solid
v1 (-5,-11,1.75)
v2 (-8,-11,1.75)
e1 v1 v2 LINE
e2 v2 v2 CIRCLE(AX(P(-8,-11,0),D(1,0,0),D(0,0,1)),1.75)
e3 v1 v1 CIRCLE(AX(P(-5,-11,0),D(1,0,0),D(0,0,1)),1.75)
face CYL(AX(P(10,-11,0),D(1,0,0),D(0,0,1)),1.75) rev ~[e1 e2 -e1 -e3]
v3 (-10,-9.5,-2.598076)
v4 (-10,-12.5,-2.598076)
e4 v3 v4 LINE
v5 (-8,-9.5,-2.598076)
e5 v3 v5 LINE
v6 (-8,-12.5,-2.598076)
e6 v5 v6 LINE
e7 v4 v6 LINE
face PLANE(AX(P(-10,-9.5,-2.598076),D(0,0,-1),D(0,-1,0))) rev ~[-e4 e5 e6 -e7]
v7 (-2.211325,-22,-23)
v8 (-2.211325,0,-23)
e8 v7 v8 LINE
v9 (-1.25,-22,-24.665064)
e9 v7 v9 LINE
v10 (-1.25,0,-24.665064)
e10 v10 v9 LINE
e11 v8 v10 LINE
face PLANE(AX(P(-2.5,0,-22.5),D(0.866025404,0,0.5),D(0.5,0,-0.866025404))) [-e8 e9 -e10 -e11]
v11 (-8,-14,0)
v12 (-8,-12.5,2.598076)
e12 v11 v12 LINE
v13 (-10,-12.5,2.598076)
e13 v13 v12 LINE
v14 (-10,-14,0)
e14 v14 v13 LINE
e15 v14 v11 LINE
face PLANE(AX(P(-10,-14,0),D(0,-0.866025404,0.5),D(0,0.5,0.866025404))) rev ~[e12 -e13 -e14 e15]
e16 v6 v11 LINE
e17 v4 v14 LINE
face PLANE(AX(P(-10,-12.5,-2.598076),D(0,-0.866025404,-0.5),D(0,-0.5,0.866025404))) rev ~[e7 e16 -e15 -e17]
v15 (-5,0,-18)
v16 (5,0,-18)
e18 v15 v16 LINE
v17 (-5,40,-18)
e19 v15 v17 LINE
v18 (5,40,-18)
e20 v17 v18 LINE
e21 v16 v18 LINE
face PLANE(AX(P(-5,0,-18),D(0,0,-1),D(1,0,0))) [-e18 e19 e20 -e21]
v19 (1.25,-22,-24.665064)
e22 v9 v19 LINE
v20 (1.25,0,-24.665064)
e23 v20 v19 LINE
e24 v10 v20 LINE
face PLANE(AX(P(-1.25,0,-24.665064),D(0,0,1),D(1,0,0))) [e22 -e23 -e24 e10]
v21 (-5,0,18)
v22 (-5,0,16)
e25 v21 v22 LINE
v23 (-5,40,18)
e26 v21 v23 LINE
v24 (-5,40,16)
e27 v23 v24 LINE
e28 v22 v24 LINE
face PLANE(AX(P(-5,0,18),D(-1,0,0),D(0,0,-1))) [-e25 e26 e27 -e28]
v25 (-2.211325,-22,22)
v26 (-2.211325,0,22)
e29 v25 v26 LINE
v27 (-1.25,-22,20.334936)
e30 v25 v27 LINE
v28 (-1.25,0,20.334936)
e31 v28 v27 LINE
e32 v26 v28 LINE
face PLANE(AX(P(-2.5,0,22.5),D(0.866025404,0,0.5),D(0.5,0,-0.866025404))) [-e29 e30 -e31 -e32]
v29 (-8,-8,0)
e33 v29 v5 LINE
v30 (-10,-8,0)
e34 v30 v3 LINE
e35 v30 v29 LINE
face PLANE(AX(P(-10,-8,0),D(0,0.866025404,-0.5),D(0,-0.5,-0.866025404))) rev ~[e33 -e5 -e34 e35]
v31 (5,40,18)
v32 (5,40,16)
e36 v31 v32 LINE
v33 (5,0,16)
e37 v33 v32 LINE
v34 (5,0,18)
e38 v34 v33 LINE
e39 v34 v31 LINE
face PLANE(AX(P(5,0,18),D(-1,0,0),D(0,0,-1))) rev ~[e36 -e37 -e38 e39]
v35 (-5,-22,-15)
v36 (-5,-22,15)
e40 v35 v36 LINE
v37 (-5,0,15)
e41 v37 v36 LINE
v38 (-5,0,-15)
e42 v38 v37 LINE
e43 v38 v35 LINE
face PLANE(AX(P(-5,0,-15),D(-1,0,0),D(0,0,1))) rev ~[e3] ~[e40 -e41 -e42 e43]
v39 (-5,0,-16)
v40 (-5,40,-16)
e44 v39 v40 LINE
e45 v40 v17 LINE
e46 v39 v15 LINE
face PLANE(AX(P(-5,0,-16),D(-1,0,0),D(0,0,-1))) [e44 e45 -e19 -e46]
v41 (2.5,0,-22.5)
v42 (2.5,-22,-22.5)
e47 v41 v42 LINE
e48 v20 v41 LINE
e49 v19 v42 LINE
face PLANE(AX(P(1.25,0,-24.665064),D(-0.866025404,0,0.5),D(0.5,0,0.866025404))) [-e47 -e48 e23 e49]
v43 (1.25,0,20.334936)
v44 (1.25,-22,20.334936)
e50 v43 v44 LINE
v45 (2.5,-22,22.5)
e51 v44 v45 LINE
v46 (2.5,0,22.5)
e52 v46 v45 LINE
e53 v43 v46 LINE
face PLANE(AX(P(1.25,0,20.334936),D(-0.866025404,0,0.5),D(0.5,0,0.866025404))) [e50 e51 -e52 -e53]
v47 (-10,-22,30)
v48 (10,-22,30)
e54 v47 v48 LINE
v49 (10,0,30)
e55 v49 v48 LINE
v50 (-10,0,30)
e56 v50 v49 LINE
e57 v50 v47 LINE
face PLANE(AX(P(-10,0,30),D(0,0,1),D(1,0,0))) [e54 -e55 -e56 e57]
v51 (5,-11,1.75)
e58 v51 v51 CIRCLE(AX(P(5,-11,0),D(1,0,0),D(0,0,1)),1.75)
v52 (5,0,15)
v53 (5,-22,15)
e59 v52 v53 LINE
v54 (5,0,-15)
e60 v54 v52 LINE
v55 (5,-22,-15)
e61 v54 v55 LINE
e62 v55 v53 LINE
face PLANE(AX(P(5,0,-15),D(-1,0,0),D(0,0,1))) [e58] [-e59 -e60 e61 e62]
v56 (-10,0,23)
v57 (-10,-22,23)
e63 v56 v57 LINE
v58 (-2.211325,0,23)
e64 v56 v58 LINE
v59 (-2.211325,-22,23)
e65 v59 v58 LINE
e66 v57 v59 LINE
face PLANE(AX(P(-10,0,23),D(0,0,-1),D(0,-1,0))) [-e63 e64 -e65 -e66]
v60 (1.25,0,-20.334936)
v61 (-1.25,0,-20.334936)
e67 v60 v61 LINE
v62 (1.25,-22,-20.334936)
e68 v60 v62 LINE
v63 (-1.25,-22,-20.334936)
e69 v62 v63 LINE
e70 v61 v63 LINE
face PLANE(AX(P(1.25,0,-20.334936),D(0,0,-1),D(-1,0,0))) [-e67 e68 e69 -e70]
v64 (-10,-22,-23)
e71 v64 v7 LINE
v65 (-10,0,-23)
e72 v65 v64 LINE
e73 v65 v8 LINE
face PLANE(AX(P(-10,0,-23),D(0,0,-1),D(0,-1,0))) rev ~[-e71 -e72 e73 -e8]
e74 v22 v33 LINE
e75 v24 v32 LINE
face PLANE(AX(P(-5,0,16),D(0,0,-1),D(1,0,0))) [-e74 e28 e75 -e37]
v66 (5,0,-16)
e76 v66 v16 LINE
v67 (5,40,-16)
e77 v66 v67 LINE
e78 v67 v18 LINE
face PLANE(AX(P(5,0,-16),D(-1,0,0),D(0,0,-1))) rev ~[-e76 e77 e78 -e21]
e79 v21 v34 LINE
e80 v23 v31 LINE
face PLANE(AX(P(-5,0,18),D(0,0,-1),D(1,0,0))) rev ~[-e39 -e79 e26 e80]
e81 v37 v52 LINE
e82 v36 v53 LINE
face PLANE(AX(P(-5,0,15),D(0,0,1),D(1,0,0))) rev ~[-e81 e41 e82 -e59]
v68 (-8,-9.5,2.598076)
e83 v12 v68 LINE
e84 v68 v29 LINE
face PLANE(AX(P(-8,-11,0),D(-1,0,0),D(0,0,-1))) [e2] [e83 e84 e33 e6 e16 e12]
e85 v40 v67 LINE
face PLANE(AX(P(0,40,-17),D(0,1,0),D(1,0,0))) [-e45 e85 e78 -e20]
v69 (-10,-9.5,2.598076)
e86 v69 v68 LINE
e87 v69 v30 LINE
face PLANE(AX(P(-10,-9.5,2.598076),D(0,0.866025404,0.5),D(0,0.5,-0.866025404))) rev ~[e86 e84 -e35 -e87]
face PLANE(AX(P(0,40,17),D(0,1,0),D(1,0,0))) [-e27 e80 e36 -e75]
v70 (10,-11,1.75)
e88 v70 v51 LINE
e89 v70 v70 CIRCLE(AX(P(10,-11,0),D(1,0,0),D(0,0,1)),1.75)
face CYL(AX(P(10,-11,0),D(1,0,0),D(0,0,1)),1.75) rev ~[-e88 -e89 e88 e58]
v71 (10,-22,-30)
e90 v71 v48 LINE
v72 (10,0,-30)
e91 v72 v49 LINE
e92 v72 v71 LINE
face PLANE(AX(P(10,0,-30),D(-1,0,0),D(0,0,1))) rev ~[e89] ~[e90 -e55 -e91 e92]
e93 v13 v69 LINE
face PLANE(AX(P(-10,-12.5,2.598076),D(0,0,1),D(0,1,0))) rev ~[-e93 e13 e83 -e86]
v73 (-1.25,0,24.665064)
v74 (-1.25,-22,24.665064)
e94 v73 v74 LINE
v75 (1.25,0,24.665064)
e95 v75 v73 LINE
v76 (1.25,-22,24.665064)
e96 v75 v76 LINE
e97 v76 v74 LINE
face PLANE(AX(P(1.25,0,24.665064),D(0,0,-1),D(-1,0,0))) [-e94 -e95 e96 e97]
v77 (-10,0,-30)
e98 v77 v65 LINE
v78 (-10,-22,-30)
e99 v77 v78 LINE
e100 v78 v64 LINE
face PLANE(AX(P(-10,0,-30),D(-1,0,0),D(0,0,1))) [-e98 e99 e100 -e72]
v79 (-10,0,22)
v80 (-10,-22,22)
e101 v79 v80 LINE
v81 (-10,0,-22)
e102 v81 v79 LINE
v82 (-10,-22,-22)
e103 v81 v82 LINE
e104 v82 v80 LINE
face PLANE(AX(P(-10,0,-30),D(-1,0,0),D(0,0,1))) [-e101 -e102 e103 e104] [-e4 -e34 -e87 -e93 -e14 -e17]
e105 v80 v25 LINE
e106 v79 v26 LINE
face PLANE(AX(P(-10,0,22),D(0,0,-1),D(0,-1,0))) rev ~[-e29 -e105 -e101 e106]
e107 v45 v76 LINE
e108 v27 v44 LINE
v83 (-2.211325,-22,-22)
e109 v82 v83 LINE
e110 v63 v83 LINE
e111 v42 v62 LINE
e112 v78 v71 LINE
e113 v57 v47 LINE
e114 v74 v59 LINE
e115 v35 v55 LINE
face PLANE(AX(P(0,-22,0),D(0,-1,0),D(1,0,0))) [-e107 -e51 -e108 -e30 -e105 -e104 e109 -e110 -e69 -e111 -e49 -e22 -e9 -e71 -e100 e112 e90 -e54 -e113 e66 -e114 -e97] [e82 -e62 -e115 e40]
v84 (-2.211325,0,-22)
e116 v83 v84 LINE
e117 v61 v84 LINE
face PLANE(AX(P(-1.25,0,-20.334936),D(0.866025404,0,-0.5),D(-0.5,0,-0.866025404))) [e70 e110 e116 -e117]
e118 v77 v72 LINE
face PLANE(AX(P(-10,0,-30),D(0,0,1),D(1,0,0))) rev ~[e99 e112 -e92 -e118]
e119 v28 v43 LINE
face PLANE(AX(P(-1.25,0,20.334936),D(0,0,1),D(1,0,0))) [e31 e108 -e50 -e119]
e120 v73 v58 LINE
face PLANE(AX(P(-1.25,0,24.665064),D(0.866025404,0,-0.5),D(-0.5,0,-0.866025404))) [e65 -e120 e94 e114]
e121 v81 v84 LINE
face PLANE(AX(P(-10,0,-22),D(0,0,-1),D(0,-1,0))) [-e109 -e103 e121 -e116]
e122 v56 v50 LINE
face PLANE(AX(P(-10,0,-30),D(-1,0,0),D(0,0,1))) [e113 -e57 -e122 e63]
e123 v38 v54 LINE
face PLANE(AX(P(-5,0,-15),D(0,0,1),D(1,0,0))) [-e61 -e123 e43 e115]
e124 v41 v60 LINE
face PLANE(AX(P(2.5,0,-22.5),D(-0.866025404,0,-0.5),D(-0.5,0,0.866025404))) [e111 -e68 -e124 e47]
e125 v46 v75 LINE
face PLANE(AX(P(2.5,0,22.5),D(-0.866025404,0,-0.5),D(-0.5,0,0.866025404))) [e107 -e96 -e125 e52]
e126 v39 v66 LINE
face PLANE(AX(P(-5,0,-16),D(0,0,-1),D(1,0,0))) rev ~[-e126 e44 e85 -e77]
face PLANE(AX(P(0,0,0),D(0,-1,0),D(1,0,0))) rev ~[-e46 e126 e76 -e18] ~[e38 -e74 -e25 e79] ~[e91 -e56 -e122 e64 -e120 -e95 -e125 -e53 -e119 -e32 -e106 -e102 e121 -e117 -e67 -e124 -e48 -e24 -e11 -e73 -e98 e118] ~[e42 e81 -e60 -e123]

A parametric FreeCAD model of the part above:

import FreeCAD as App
import Part
import Sketcher
from FreeCAD import Vector
Q = App.Units.Quantity

doc = App.newDocument("Part")
params = doc.addObject("Spreadsheet::Sheet", "Params")
for row, (alias, value) in enumerate([
    ("sketch1_width", "20 mm"),
    ("sketch1_width2", "10 mm"),
    ("sketch1_height", "60 mm"),
    ("sketch1_height2", "30 mm"),
    ("sketch1_width3", "2.5 mm"),
    ("pad1_length", "22 mm"),
    ("sketch2_diameter", "3.5 mm"),
    ("sketch3_width", "3 mm"),
    ("sketch3_length", "3 mm"),
    ("pocket2_length", "2 mm"),
    ("sketch4_width", "22 mm"),
    ("sketch4_height", "1 mm"),
    ("pocket3_length", "11 mm"),
    ("sketch5_width", "10 mm"),
    ("sketch5_height", "2 mm"),
    ("pad2_length", "40 mm"),
], start=1):
    params.set(f"A{row}", alias)
    params.set(f"B{row}", "=" + value)
    params.setAlias(f"B{row}", alias)

body = doc.addObject("PartDesign::Body", "Body")

# Sketch on XZ plane
sketch1 = body.newObject("Sketcher::SketchObject", "Sketch")
sketch1.AttachmentSupport = (doc.getObject("XZ_Plane"), [""])
sketch1.MapMode = "FlatFace"
sketch1.addGeometry(Part.LineSegment(Vector(-10, 30, 0), Vector(-10, -30, 0)), False)
sketch1.addGeometry(Part.LineSegment(Vector(-10, -30, 0), Vector(10, -30, 0)), False)
sketch1.addGeometry(Part.LineSegment(Vector(10, -30, 0), Vector(10, 30, 0)), False)
sketch1.addGeometry(Part.LineSegment(Vector(10, 30, 0), Vector(-10, 30, 0)), False)
sketch1.addGeometry(Part.LineSegment(Vector(1.25, -20.334936, 0), Vector(2.5, -22.5, 0)), False)
sketch1.addGeometry(Part.LineSegment(Vector(2.5, -22.5, 0), Vector(1.25, -24.665064, 0)), False)
sketch1.addGeometry(Part.LineSegment(Vector(1.25, -24.665064, 0), Vector(-1.25, -24.665064, 0)), False)
sketch1.addGeometry(Part.LineSegment(Vector(-1.25, -24.665064, 0), Vector(-2.5, -22.5, 0)), False)
sketch1.addGeometry(Part.LineSegment(Vector(-2.5, -22.5, 0), Vector(-1.25, -20.334936, 0)), False)
sketch1.addGeometry(Part.LineSegment(Vector(-1.25, -20.334936, 0), Vector(1.25, -20.334936, 0)), False)
sketch1.addGeometry(Part.LineSegment(Vector(5, -15, 0), Vector(-5, -15, 0)), False)
sketch1.addGeometry(Part.LineSegment(Vector(-5, -15, 0), Vector(-5, 15, 0)), False)
sketch1.addGeometry(Part.LineSegment(Vector(-5, 15, 0), Vector(5, 15, 0)), False)
sketch1.addGeometry(Part.LineSegment(Vector(5, 15, 0), Vector(5, -15, 0)), False)
sketch1.addGeometry(Part.LineSegment(Vector(2.5, 22.5, 0), Vector(1.25, 20.334936, 0)), False)
sketch1.addGeometry(Part.LineSegment(Vector(1.25, 20.334936, 0), Vector(-1.25, 20.334936, 0)), False)
sketch1.addGeometry(Part.LineSegment(Vector(-1.25, 20.334936, 0), Vector(-2.5, 22.5, 0)), False)
sketch1.addGeometry(Part.LineSegment(Vector(-2.5, 22.5, 0), Vector(-1.25, 24.665064, 0)), False)
sketch1.addGeometry(Part.LineSegment(Vector(-1.25, 24.665064, 0), Vector(1.25, 24.665064, 0)), False)
sketch1.addGeometry(Part.LineSegment(Vector(1.25, 24.665064, 0), Vector(2.5, 22.5, 0)), False)
sketch1.addConstraint(Sketcher.Constraint("Coincident", 0, 2, 1, 1))
sketch1.addConstraint(Sketcher.Constraint("Coincident", 1, 2, 2, 1))
sketch1.addConstraint(Sketcher.Constraint("Coincident", 2, 2, 3, 1))
sketch1.addConstraint(Sketcher.Constraint("Coincident", 3, 2, 0, 1))
sketch1.addConstraint(Sketcher.Constraint("Coincident", 4, 2, 5, 1))
sketch1.addConstraint(Sketcher.Constraint("Coincident", 5, 2, 6, 1))
sketch1.addConstraint(Sketcher.Constraint("Coincident", 6, 2, 7, 1))
sketch1.addConstraint(Sketcher.Constraint("Coincident", 7, 2, 8, 1))
sketch1.addConstraint(Sketcher.Constraint("Coincident", 8, 2, 9, 1))
sketch1.addConstraint(Sketcher.Constraint("Coincident", 9, 2, 4, 1))
sketch1.addConstraint(Sketcher.Constraint("Coincident", 10, 2, 11, 1))
sketch1.addConstraint(Sketcher.Constraint("Coincident", 11, 2, 12, 1))
sketch1.addConstraint(Sketcher.Constraint("Coincident", 12, 2, 13, 1))
sketch1.addConstraint(Sketcher.Constraint("Coincident", 13, 2, 10, 1))
sketch1.addConstraint(Sketcher.Constraint("Coincident", 14, 2, 15, 1))
sketch1.addConstraint(Sketcher.Constraint("Coincident", 15, 2, 16, 1))
sketch1.addConstraint(Sketcher.Constraint("Coincident", 16, 2, 17, 1))
sketch1.addConstraint(Sketcher.Constraint("Coincident", 17, 2, 18, 1))
sketch1.addConstraint(Sketcher.Constraint("Coincident", 18, 2, 19, 1))
sketch1.addConstraint(Sketcher.Constraint("Coincident", 19, 2, 14, 1))
sketch1.addConstraint(Sketcher.Constraint("Vertical", 0))
sketch1.addConstraint(Sketcher.Constraint("Horizontal", 1))
sketch1.addConstraint(Sketcher.Constraint("Vertical", 2))
sketch1.addConstraint(Sketcher.Constraint("Horizontal", 3))
sketch1.addConstraint(Sketcher.Constraint("Horizontal", 6))
sketch1.addConstraint(Sketcher.Constraint("Horizontal", 9))
sketch1.addConstraint(Sketcher.Constraint("Horizontal", 10))
sketch1.addConstraint(Sketcher.Constraint("Vertical", 11))
sketch1.addConstraint(Sketcher.Constraint("Horizontal", 12))
sketch1.addConstraint(Sketcher.Constraint("Vertical", 13))
sketch1.addConstraint(Sketcher.Constraint("Horizontal", 15))
sketch1.addConstraint(Sketcher.Constraint("Horizontal", 18))
sketch1.addConstraint(Sketcher.Constraint("Symmetric", 0, 2, 2, 2, -1, 1))
sketch1.addConstraint(Sketcher.Constraint("Symmetric", 10, 2, 12, 2, -1, 1))
sketch1.addConstraint(Sketcher.Constraint("Symmetric", 8, 2, 14, 2, -1, 1))
sketch1.addConstraint(Sketcher.Constraint("Symmetric", 4, 2, 16, 2, -1, 1))
sketch1.addConstraint(Sketcher.Constraint("Symmetric", 5, 2, 17, 2, -1, 1))
sketch1.addConstraint(Sketcher.Constraint("Symmetric", 7, 2, 19, 2, -1, 1))
sketch1.addConstraint(Sketcher.Constraint("Symmetric", 4, 2, 7, 2, -2))
sketch1.addConstraint(Sketcher.Constraint("Parallel", 4, 7))
sketch1.addConstraint(Sketcher.Constraint("Parallel", 5, 8))
sketch1.addConstraint(Sketcher.Constraint("Parallel", 7, 16))
sketch1.addConstraint(Sketcher.Constraint("Parallel", 16, 19))
sketch1.addConstraint(Sketcher.Constraint("Vertical", 6, 2, 8, 2))
sketch1.addConstraint(Sketcher.Constraint("Vertical", 5, 2, 9, 2))
sketch1.addConstraint(Sketcher.Constraint("DistanceX", 1, 1, 1, 2, 20.0))
sketch1.addConstraint(Sketcher.Constraint("DistanceX", 10, 2, 10, 1, 10.0))
sketch1.addConstraint(Sketcher.Constraint("DistanceY", 0, 2, 0, 1, 60.0))
sketch1.addConstraint(Sketcher.Constraint("DistanceY", 11, 1, 11, 2, 30.0))
sketch1.addConstraint(Sketcher.Constraint("Angle", 4, Q("-60 deg")))
sketch1.addConstraint(Sketcher.Constraint("DistanceX", 6, 2, 6, 1, 2.5))
sketch1.addConstraint(Sketcher.Constraint("DistanceX", 7, 2, 4, 2, 5.0))
sketch1.addConstraint(Sketcher.Constraint("DistanceY", 4, 2, -1, 1, 22.5))
sketch1.setExpression("Constraints[45]", "Params.sketch1_width")
sketch1.setExpression("Constraints[46]", "Params.sketch1_width2")
sketch1.setExpression("Constraints[47]", "Params.sketch1_height")
sketch1.setExpression("Constraints[48]", "Params.sketch1_height2")
sketch1.setExpression("Constraints[50]", "Params.sketch1_width3")
pad1 = body.newObject("PartDesign::Pad", "Pad")
pad1.Profile = sketch1
pad1.setExpression("Length", "Params.pad1_length")

# Sketch on YZ plane
sketch2 = body.newObject("Sketcher::SketchObject", "Sketch001")
sketch2.AttachmentSupport = (doc.getObject("YZ_Plane"), [""])
sketch2.MapMode = "FlatFace"
sketch2.AttachmentOffset = App.Placement(Vector(0, 0, 10), App.Rotation())
sketch2.addGeometry(Part.Circle(Vector(-11, 0, 0), Vector(0, 0, 1), 1.75), False)
sketch2.addConstraint(Sketcher.Constraint("PointOnObject", 0, 3, -1))
sketch2.addConstraint(Sketcher.Constraint("Diameter", 0, 3.5))
sketch2.addConstraint(Sketcher.Constraint("DistanceX", 0, 3, -1, 1, 11.0))
sketch2.setExpression("Constraints[1]", "Params.sketch2_diameter")
pocket1 = body.newObject("PartDesign::Pocket", "Pocket")
pocket1.Profile = sketch2
pocket1.Type = "ThroughAll"

# Sketch on YZ plane
sketch3 = body.newObject("Sketcher::SketchObject", "Sketch002")
sketch3.AttachmentSupport = (doc.getObject("YZ_Plane"), [""])
sketch3.MapMode = "FlatFace"
sketch3.AttachmentOffset = App.Placement(Vector(0, 0, -10), App.Rotation())
sketch3.addGeometry(Part.LineSegment(Vector(-9.5, -2.598076, 0), Vector(-12.5, -2.598076, 0)), False)
sketch3.addGeometry(Part.LineSegment(Vector(-12.5, -2.598076, 0), Vector(-14, 0, 0)), False)
sketch3.addGeometry(Part.LineSegment(Vector(-14, 0, 0), Vector(-12.5, 2.598076, 0)), False)
sketch3.addGeometry(Part.LineSegment(Vector(-12.5, 2.598076, 0), Vector(-9.5, 2.598076, 0)), False)
sketch3.addGeometry(Part.LineSegment(Vector(-9.5, 2.598076, 0), Vector(-8, 0, 0)), False)
sketch3.addGeometry(Part.LineSegment(Vector(-8, 0, 0), Vector(-9.5, -2.598076, 0)), False)
sketch3.addConstraint(Sketcher.Constraint("Coincident", 0, 2, 1, 1))
sketch3.addConstraint(Sketcher.Constraint("Coincident", 1, 2, 2, 1))
sketch3.addConstraint(Sketcher.Constraint("Coincident", 2, 2, 3, 1))
sketch3.addConstraint(Sketcher.Constraint("Coincident", 3, 2, 4, 1))
sketch3.addConstraint(Sketcher.Constraint("Coincident", 4, 2, 5, 1))
sketch3.addConstraint(Sketcher.Constraint("Coincident", 5, 2, 0, 1))
sketch3.addConstraint(Sketcher.Constraint("Horizontal", 0))
sketch3.addConstraint(Sketcher.Constraint("Horizontal", 3))
sketch3.addConstraint(Sketcher.Constraint("Symmetric", 0, 2, 2, 2, -1))
sketch3.addConstraint(Sketcher.Constraint("PointOnObject", 1, 2, -1))
sketch3.addConstraint(Sketcher.Constraint("PointOnObject", 4, 2, -1))
sketch3.addConstraint(Sketcher.Constraint("Parallel", 1, 4))
sketch3.addConstraint(Sketcher.Constraint("Parallel", 2, 5))
sketch3.addConstraint(Sketcher.Constraint("DistanceX", 0, 2, 0, 1, 3.0))
sketch3.addConstraint(Sketcher.Constraint("Angle", 1, Q("120 deg")))
sketch3.addConstraint(Sketcher.Constraint("Distance", 1, 3.0))
sketch3.addConstraint(Sketcher.Constraint("DistanceX", 1, 2, -1, 1, 14.0))
sketch3.setExpression("Constraints[13]", "Params.sketch3_width")
sketch3.setExpression("Constraints[15]", "Params.sketch3_length")
pocket2 = body.newObject("PartDesign::Pocket", "Pocket001")
pocket2.Profile = sketch3
pocket2.setExpression("Length", "Params.pocket2_length")
pocket2.Reversed = True

# Sketch on YZ plane
sketch4 = body.newObject("Sketcher::SketchObject", "Sketch003")
sketch4.AttachmentSupport = (doc.getObject("YZ_Plane"), [""])
sketch4.MapMode = "FlatFace"
sketch4.AttachmentOffset = App.Placement(Vector(0, 0, -10), App.Rotation())
sketch4.addGeometry(Part.LineSegment(Vector(-22, -22, 0), Vector(0, -22, 0)), False)
sketch4.addGeometry(Part.LineSegment(Vector(0, -22, 0), Vector(0, -23, 0)), False)
sketch4.addGeometry(Part.LineSegment(Vector(0, -23, 0), Vector(-22, -23, 0)), False)
sketch4.addGeometry(Part.LineSegment(Vector(-22, -23, 0), Vector(-22, -22, 0)), False)
sketch4.addGeometry(Part.LineSegment(Vector(-22, 23, 0), Vector(0, 23, 0)), False)
sketch4.addGeometry(Part.LineSegment(Vector(0, 23, 0), Vector(0, 22, 0)), False)
sketch4.addGeometry(Part.LineSegment(Vector(0, 22, 0), Vector(-22, 22, 0)), False)
sketch4.addGeometry(Part.LineSegment(Vector(-22, 22, 0), Vector(-22, 23, 0)), False)
sketch4.addConstraint(Sketcher.Constraint("Coincident", 0, 2, 1, 1))
sketch4.addConstraint(Sketcher.Constraint("Coincident", 1, 2, 2, 1))
sketch4.addConstraint(Sketcher.Constraint("Coincident", 2, 2, 3, 1))
sketch4.addConstraint(Sketcher.Constraint("Coincident", 3, 2, 0, 1))
sketch4.addConstraint(Sketcher.Constraint("Coincident", 4, 2, 5, 1))
sketch4.addConstraint(Sketcher.Constraint("Coincident", 5, 2, 6, 1))
sketch4.addConstraint(Sketcher.Constraint("Coincident", 6, 2, 7, 1))
sketch4.addConstraint(Sketcher.Constraint("Coincident", 7, 2, 4, 1))
sketch4.addConstraint(Sketcher.Constraint("Horizontal", 0))
sketch4.addConstraint(Sketcher.Constraint("Vertical", 1))
sketch4.addConstraint(Sketcher.Constraint("Horizontal", 2))
sketch4.addConstraint(Sketcher.Constraint("Vertical", 3))
sketch4.addConstraint(Sketcher.Constraint("Horizontal", 4))
sketch4.addConstraint(Sketcher.Constraint("Vertical", 5))
sketch4.addConstraint(Sketcher.Constraint("Horizontal", 6))
sketch4.addConstraint(Sketcher.Constraint("Vertical", 7))
sketch4.addConstraint(Sketcher.Constraint("Symmetric", 1, 2, 4, 2, -1, 1))
sketch4.addConstraint(Sketcher.Constraint("Symmetric", 0, 2, 5, 2, -1))
sketch4.addConstraint(Sketcher.Constraint("Vertical", 3, 2, 6, 2))
sketch4.addConstraint(Sketcher.Constraint("DistanceX", 0, 1, 0, 2, 22.0))
sketch4.addConstraint(Sketcher.Constraint("DistanceY", 1, 2, 1, 1, 1.0))
sketch4.addConstraint(Sketcher.Constraint("DistanceY", 0, 2, -1, 1, 22.0))
sketch4.setExpression("Constraints[19]", "Params.sketch4_width")
sketch4.setExpression("Constraints[20]", "Params.sketch4_height")
pocket3 = body.newObject("PartDesign::Pocket", "Pocket002")
pocket3.Profile = sketch4
pocket3.setExpression("Length", "Params.pocket3_length")
pocket3.Reversed = True

# Sketch on XZ plane
sketch5 = body.newObject("Sketcher::SketchObject", "Sketch004")
sketch5.AttachmentSupport = (doc.getObject("XZ_Plane"), [""])
sketch5.MapMode = "FlatFace"
sketch5.addGeometry(Part.LineSegment(Vector(-5, -18, 0), Vector(-5, -16, 0)), False)
sketch5.addGeometry(Part.LineSegment(Vector(-5, -16, 0), Vector(5, -16, 0)), False)
sketch5.addGeometry(Part.LineSegment(Vector(5, -16, 0), Vector(5, -18, 0)), False)
sketch5.addGeometry(Part.LineSegment(Vector(5, -18, 0), Vector(-5, -18, 0)), False)
sketch5.addGeometry(Part.LineSegment(Vector(-5, 16, 0), Vector(-5, 18, 0)), False)
sketch5.addGeometry(Part.LineSegment(Vector(-5, 18, 0), Vector(5, 18, 0)), False)
sketch5.addGeometry(Part.LineSegment(Vector(5, 18, 0), Vector(5, 16, 0)), False)
sketch5.addGeometry(Part.LineSegment(Vector(5, 16, 0), Vector(-5, 16, 0)), False)
sketch5.addConstraint(Sketcher.Constraint("Coincident", 0, 2, 1, 1))
sketch5.addConstraint(Sketcher.Constraint("Coincident", 1, 2, 2, 1))
sketch5.addConstraint(Sketcher.Constraint("Coincident", 2, 2, 3, 1))
sketch5.addConstraint(Sketcher.Constraint("Coincident", 3, 2, 0, 1))
sketch5.addConstraint(Sketcher.Constraint("Coincident", 4, 2, 5, 1))
sketch5.addConstraint(Sketcher.Constraint("Coincident", 5, 2, 6, 1))
sketch5.addConstraint(Sketcher.Constraint("Coincident", 6, 2, 7, 1))
sketch5.addConstraint(Sketcher.Constraint("Coincident", 7, 2, 4, 1))
sketch5.addConstraint(Sketcher.Constraint("Vertical", 0))
sketch5.addConstraint(Sketcher.Constraint("Horizontal", 1))
sketch5.addConstraint(Sketcher.Constraint("Vertical", 2))
sketch5.addConstraint(Sketcher.Constraint("Horizontal", 3))
sketch5.addConstraint(Sketcher.Constraint("Vertical", 4))
sketch5.addConstraint(Sketcher.Constraint("Horizontal", 5))
sketch5.addConstraint(Sketcher.Constraint("Vertical", 6))
sketch5.addConstraint(Sketcher.Constraint("Horizontal", 7))
sketch5.addConstraint(Sketcher.Constraint("Symmetric", 2, 2, 4, 2, -1, 1))
sketch5.addConstraint(Sketcher.Constraint("Symmetric", 0, 2, 6, 2, -1, 1))
sketch5.addConstraint(Sketcher.Constraint("Vertical", 3, 2, 4, 2))
sketch5.addConstraint(Sketcher.Constraint("DistanceX", 1, 1, 1, 2, 10.0))
sketch5.addConstraint(Sketcher.Constraint("DistanceY", 0, 1, 0, 2, 2.0))
sketch5.addConstraint(Sketcher.Constraint("DistanceY", 0, 2, -1, 1, 16.0))
sketch5.setExpression("Constraints[19]", "Params.sketch5_width")
sketch5.setExpression("Constraints[20]", "Params.sketch5_height")
pad2 = body.newObject("PartDesign::Pad", "Pad001")
pad2.Profile = sketch5
pad2.setExpression("Length", "Params.pad2_length")
pad2.Reversed = True

doc.recompute()
